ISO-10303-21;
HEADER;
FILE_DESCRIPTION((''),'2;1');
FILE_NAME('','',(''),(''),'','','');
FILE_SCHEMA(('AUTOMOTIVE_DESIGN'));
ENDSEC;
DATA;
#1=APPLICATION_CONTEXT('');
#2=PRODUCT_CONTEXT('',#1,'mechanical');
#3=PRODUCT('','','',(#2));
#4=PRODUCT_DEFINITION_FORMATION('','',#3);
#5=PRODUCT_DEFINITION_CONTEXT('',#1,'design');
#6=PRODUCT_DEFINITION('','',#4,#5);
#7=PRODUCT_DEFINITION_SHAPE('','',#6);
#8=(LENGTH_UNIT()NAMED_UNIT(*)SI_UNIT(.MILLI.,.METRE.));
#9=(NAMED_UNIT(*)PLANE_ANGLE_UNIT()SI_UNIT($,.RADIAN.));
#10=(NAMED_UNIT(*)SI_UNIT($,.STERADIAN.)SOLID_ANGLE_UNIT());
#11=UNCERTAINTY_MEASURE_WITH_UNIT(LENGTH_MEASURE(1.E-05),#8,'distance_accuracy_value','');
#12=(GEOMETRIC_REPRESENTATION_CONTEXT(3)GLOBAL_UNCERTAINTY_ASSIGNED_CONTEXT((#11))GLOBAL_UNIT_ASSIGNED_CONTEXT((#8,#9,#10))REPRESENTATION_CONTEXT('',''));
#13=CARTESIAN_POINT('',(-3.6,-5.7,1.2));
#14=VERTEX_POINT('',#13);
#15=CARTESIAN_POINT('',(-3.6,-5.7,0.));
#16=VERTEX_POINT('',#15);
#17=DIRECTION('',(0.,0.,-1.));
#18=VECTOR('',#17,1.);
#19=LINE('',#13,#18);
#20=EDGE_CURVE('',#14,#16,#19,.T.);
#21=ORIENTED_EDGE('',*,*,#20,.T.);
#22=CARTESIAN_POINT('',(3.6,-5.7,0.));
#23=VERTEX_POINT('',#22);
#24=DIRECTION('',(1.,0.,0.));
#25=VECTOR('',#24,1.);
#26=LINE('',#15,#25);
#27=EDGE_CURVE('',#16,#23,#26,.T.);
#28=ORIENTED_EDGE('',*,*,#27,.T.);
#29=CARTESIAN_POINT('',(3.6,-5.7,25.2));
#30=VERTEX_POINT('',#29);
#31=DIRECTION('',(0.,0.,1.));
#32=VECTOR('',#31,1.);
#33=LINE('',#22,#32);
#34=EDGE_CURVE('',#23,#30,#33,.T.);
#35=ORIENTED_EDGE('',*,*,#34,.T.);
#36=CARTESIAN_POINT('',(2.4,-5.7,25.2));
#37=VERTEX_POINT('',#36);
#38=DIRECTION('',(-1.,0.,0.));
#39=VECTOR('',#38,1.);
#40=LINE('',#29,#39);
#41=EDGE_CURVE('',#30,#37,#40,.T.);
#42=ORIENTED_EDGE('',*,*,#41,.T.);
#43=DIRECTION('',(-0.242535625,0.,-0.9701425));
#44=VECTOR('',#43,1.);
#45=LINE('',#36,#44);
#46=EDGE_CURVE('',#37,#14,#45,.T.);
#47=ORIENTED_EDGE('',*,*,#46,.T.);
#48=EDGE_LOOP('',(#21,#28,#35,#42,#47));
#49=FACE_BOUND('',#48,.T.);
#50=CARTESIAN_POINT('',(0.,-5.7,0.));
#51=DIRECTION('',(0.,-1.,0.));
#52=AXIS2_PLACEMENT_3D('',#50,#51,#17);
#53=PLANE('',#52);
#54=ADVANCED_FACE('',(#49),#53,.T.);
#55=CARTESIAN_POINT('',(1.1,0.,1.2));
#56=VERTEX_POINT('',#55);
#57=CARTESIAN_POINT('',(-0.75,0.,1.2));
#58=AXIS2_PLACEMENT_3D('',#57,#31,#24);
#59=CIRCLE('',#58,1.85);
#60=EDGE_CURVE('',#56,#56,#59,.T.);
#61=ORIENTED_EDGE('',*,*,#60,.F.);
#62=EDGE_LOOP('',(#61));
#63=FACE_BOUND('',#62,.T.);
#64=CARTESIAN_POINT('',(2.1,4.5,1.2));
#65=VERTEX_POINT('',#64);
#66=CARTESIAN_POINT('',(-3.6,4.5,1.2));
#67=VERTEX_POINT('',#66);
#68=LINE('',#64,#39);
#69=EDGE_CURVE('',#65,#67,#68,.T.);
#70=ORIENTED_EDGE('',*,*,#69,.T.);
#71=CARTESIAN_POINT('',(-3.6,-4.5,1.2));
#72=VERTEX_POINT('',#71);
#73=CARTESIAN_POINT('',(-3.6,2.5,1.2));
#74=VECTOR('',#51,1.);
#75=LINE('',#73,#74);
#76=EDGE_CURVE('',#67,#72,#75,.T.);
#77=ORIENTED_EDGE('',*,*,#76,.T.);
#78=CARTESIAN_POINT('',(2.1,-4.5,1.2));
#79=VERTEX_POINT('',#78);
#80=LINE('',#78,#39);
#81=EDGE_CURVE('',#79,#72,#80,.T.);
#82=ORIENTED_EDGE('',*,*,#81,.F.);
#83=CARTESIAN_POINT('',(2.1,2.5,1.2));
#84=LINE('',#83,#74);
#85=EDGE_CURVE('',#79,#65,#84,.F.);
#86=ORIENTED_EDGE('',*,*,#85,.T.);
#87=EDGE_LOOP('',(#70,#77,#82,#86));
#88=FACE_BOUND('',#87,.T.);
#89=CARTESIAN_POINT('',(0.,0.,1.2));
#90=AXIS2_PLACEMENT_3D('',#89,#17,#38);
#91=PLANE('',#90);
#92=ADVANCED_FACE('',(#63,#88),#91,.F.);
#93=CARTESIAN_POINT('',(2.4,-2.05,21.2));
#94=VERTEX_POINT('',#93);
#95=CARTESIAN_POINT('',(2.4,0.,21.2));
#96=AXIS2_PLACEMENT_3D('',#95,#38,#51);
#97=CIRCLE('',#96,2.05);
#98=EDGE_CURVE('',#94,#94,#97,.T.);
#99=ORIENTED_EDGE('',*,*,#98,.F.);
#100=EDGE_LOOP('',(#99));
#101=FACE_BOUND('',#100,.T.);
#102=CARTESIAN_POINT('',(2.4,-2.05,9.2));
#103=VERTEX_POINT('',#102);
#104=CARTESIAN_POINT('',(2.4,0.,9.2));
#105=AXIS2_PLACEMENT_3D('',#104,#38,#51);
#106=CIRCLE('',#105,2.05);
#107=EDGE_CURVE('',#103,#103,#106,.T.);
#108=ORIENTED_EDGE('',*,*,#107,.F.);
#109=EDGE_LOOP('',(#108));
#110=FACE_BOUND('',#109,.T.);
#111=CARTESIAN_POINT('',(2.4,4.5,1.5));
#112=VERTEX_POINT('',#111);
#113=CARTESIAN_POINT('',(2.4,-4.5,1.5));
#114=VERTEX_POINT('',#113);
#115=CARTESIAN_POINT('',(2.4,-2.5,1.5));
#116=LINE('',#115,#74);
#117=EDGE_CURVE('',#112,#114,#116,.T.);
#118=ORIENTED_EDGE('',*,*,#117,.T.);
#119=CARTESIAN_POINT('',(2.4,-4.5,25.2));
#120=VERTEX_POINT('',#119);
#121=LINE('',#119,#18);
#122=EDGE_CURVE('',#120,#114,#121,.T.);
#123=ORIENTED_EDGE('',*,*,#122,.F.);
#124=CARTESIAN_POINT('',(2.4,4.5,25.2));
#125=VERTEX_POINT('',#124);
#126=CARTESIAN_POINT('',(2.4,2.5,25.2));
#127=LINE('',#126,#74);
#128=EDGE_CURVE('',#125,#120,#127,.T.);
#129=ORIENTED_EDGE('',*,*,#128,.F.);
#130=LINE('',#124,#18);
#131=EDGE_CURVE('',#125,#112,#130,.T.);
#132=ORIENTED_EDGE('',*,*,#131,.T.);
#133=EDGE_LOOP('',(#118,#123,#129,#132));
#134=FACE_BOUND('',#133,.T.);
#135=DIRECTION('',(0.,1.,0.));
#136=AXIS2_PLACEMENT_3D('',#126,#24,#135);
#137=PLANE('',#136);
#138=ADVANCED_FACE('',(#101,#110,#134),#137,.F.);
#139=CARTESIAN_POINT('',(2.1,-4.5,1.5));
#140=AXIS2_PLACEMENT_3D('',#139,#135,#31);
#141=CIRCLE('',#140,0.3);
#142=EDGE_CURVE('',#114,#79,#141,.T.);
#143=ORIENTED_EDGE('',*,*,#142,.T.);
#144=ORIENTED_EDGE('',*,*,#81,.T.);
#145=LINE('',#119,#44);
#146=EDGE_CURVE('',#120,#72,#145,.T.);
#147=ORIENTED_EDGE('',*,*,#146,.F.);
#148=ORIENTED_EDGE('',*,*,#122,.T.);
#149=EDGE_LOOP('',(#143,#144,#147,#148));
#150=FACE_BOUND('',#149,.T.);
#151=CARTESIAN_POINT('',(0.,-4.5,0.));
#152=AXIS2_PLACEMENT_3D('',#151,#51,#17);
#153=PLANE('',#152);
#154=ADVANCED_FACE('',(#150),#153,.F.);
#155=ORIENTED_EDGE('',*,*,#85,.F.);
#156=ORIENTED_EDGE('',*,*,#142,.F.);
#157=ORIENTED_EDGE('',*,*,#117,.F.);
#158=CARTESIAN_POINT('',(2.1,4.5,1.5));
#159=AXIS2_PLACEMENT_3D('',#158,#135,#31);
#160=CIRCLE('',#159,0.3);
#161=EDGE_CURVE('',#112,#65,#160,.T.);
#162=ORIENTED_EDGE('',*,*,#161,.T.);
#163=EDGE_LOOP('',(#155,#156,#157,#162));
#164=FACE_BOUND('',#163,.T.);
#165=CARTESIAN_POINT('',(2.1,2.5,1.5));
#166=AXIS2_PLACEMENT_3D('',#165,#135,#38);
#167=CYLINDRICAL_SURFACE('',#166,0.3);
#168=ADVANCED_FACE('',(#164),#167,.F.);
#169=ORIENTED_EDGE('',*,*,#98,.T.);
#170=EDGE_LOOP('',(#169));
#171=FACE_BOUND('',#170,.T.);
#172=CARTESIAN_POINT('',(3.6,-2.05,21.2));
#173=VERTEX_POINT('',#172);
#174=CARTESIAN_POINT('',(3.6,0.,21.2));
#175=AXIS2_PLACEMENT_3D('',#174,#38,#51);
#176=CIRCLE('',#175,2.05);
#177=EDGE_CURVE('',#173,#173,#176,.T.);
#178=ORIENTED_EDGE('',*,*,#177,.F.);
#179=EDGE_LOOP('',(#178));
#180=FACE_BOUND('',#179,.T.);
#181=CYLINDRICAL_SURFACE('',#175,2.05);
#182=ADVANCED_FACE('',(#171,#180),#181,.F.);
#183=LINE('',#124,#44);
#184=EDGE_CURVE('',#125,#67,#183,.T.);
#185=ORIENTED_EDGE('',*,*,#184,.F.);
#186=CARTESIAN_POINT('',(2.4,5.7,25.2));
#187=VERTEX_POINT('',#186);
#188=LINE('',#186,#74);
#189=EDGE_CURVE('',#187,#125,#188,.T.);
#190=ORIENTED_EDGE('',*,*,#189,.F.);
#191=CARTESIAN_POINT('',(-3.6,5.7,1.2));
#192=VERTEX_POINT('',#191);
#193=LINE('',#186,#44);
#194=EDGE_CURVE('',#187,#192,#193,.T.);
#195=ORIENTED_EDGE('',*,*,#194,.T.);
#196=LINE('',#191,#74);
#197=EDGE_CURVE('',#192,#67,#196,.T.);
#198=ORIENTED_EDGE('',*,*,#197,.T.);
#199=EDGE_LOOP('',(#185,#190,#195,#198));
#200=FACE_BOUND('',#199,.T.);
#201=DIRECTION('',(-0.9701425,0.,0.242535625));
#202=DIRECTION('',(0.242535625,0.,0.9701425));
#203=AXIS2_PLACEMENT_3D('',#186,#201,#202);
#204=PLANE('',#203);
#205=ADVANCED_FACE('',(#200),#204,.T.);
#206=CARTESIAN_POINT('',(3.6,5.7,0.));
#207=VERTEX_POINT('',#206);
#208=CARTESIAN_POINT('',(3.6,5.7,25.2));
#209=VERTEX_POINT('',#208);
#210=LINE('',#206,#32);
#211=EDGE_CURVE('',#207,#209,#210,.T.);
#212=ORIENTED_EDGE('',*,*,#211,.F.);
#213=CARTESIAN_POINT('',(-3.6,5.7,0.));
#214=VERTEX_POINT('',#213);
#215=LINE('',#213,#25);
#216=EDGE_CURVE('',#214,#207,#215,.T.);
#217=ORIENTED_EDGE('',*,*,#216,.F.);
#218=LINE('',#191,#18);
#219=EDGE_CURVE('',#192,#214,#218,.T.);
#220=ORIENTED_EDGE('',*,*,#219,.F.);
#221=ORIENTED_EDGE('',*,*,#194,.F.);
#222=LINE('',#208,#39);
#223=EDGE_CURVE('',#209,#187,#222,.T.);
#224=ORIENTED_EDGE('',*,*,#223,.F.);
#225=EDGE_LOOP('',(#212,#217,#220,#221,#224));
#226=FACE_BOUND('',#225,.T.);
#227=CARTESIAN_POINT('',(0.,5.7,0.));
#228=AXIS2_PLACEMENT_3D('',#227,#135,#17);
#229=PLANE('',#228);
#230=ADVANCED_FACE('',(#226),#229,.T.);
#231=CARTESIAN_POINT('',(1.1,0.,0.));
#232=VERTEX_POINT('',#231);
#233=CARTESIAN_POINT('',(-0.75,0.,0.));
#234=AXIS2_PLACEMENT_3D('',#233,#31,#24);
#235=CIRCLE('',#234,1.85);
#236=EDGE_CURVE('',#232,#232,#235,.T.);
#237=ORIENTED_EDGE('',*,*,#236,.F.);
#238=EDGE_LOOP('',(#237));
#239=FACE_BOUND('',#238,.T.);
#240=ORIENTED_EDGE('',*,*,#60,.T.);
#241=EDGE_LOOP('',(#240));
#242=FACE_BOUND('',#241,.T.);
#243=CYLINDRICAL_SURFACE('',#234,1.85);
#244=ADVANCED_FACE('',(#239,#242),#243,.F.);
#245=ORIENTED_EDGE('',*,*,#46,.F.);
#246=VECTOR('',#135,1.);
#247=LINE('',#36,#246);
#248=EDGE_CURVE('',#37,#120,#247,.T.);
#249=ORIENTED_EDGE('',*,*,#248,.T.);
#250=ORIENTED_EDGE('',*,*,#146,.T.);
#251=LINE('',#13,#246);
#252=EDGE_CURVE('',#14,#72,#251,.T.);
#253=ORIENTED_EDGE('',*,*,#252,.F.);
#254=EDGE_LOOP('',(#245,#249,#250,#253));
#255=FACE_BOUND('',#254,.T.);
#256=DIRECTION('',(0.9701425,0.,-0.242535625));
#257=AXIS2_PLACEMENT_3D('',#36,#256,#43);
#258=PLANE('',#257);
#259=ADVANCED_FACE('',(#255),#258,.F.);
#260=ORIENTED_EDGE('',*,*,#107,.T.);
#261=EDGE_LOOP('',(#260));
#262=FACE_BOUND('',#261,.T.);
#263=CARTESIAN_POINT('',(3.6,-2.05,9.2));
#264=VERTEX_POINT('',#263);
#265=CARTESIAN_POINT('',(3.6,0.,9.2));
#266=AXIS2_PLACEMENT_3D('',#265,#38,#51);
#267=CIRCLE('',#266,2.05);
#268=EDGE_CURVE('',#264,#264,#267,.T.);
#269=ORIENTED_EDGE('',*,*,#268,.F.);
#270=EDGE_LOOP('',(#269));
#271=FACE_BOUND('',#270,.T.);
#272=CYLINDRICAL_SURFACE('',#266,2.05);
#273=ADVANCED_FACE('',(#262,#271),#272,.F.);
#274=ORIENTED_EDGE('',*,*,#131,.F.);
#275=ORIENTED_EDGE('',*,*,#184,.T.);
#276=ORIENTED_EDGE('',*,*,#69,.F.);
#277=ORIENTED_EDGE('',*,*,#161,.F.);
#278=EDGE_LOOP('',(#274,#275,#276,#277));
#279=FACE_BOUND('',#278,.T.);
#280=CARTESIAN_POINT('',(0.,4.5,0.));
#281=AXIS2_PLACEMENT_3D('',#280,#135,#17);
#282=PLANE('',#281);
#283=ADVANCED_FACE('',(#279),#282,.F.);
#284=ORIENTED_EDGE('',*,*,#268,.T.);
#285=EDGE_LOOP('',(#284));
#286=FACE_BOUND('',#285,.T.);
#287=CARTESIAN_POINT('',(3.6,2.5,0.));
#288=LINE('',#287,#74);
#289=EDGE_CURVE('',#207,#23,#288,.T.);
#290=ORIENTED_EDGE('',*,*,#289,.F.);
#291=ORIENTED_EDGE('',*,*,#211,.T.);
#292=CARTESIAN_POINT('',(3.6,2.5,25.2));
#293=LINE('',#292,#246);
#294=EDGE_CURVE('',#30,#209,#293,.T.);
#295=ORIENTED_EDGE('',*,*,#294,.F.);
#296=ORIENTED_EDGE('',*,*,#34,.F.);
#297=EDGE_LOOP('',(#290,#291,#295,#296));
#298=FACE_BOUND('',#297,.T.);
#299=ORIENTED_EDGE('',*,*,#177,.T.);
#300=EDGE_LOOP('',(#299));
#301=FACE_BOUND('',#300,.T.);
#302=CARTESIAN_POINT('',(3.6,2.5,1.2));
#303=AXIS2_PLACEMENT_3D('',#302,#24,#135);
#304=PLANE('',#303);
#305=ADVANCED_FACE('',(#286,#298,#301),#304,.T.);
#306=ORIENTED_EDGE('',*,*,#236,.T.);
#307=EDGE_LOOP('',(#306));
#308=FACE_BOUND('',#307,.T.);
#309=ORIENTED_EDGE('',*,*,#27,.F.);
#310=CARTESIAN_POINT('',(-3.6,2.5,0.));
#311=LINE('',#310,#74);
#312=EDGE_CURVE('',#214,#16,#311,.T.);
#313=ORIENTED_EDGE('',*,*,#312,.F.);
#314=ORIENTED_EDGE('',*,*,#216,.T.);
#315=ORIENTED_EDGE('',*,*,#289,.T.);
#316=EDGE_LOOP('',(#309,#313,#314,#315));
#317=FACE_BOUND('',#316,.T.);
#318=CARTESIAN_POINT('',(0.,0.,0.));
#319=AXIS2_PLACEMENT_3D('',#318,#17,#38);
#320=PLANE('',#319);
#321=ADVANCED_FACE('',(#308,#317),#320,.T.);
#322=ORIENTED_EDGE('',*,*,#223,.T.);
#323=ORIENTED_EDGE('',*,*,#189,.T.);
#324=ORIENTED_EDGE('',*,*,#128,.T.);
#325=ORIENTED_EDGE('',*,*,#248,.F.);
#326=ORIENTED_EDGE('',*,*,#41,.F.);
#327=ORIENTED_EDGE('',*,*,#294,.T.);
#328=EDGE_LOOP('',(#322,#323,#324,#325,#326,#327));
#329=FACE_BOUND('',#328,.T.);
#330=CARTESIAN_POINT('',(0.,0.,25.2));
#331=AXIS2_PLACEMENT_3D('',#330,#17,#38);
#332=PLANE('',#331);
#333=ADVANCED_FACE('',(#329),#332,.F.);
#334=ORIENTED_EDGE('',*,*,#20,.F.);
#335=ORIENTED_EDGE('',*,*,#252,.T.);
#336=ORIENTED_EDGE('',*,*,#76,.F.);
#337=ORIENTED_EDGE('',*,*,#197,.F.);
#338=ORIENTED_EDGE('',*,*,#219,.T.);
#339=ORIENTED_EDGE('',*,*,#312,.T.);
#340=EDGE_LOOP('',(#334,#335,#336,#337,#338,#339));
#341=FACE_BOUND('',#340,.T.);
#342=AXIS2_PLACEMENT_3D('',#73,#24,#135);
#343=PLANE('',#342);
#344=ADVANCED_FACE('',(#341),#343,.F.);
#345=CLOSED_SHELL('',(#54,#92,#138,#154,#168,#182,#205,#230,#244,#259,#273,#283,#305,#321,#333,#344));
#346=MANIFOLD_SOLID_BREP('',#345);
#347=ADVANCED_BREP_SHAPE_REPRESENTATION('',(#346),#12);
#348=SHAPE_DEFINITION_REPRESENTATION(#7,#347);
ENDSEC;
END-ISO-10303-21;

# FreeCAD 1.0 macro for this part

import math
import FreeCAD as App
import Part
import Sketcher


def edges_at(feature, points):
    """Names of the edges that pass closest to the given points."""
    edges = feature.Shape.Edges
    near = lambda p: min(range(len(edges)), key=lambda i: edges[i].distToShape(Part.Vertex(*p))[0])
    return sorted({f"Edge{near(p) + 1}" for p in points})


def add_polygon(sketch, points):
    """Adds a closed chain of lines whose ends are joined by coincident constraints."""
    first, n = sketch.GeometryCount, len(points)
    for a, b in zip(points, points[1:] + points[:1]):
        sketch.addGeometry(Part.LineSegment(App.Vector(*a, 0), App.Vector(*b, 0)), False)
    for i in range(n):
        sketch.addConstraint(Sketcher.Constraint("Coincident", first + i, 2, first + (i + 1) % n, 1))

doc = App.newDocument("Part")
body = doc.addObject("PartDesign::Body", "Body")

# Sketch on XY plane
sketch1 = doc.addObject("Sketcher::SketchObject", "Sketch")
body.addObject(sketch1)
sketch1.AttachmentSupport = (doc.XY_Plane, [""])
sketch1.MapMode = "FlatFace"
add_polygon(sketch1, [(-4, 2), (-4, -2), (4, -2), (4, 2)])  # lines 0-3
sketch1.addConstraint(Sketcher.Constraint("Vertical", 0))
sketch1.addConstraint(Sketcher.Constraint("Horizontal", 1))
sketch1.addConstraint(Sketcher.Constraint("Vertical", 2))
sketch1.addConstraint(Sketcher.Constraint("Horizontal", 3))
sketch1.addConstraint(Sketcher.Constraint("Symmetric", 0, 2, 2, 2, -1, 1))
sketch1.addConstraint(Sketcher.Constraint("DistanceY", 0, 2, 0, 1, 5.0))
sketch1.addConstraint(Sketcher.Constraint("DistanceX", 1, 1, 1, 2, 7.2))
pad1 = doc.addObject("PartDesign::Pad", "Pad")
body.addObject(pad1)
pad1.Profile = sketch1
pad1.Length = 1.2

# Sketch on XY plane
sketch2 = doc.addObject("Sketcher::SketchObject", "Sketch001")
body.addObject(sketch2)
sketch2.AttachmentSupport = (doc.XY_Plane, [""])
sketch2.MapMode = "FlatFace"
sketch2.AttachmentOffset = App.Placement(App.Vector(0, 0, 1.2), App.Rotation())
sketch2.addGeometry(Part.Circle(App.Vector(-0.8, 0, 0), App.Vector(0, 0, 1), 1.9), False)
sketch2.addConstraint(Sketcher.Constraint("PointOnObject", 0, 3, -1))
sketch2.addConstraint(Sketcher.Constraint("Diameter", 0, 3.7))
sketch2.addConstraint(Sketcher.Constraint("DistanceX", 0, 3, -1, 1, 0.75))
pocket1 = doc.addObject("PartDesign::Pocket", "Pocket")
body.addObject(pocket1)
pocket1.Profile = sketch2
pocket1.Type = "ThroughAll"

# Sketch on XY plane
sketch3 = doc.addObject("Sketcher::SketchObject", "Sketch002")
body.addObject(sketch3)
sketch3.AttachmentSupport = (doc.XY_Plane, [""])
sketch3.MapMode = "FlatFace"
sketch3.AttachmentOffset = App.Placement(App.Vector(0, 0, 1.2), App.Rotation())
add_polygon(sketch3, [(2.4, 2.5), (2.4, -2.5), (3.6, -2.5), (3.6, 2.5)])  # lines 0-3
sketch3.addConstraint(Sketcher.Constraint("Vertical", 0))
sketch3.addConstraint(Sketcher.Constraint("Horizontal", 1))
sketch3.addConstraint(Sketcher.Constraint("Vertical", 2))
sketch3.addConstraint(Sketcher.Constraint("Horizontal", 3))
sketch3.addConstraint(Sketcher.Constraint("DistanceY", 0, 2, 0, 1, 5.0))
sketch3.addConstraint(Sketcher.Constraint("DistanceX", 1, 1, 1, 2, 1.2))
sketch3.addConstraint(Sketcher.Constraint("DistanceX", -1, 1, 0, 2, 2.4))
sketch3.addConstraint(Sketcher.Constraint("DistanceY", 0, 2, -1, 1, 2.5))
pad2 = doc.addObject("PartDesign::Pad", "Pad001")
body.addObject(pad2)
pad2.Profile = sketch3
pad2.Length = 24
doc.recompute()

fillet = doc.addObject("PartDesign::Fillet", "Fillet")
body.addObject(fillet)
fillet.Base = (pad2, edges_at(pad2, [(2.4, 0, 1.2)]))
fillet.Radius = 0.3

# Sketch on YZ plane
sketch4 = doc.addObject("Sketcher::SketchObject", "Sketch003")
body.addObject(sketch4)
sketch4.AttachmentSupport = (doc.YZ_Plane, [""])
sketch4.MapMode = "FlatFace"
sketch4.AttachmentOffset = App.Placement(App.Vector(0, 0, 2.4), App.Rotation())
sketch4.addGeometry(Part.Circle(App.Vector(0, 21.2, 0), App.Vector(0, 0, 1), 2), False)
sketch4.addGeometry(Part.Circle(App.Vector(0, 9.2, 0), App.Vector(0, 0, 1), 2), False)
sketch4.addConstraint(Sketcher.Constraint("Equal", 0, 1))
sketch4.addConstraint(Sketcher.Constraint("PointOnObject", 0, 3, -2))
sketch4.addConstraint(Sketcher.Constraint("PointOnObject", 1, 3, -2))
sketch4.addConstraint(Sketcher.Constraint("Diameter", 0, 4.1))
sketch4.addConstraint(Sketcher.Constraint("DistanceY", 1, 3, 0, 3, 12.0))
sketch4.addConstraint(Sketcher.Constraint("DistanceY", -1, 1, 0, 3, 21.2))
pocket2 = doc.addObject("PartDesign::Pocket", "Pocket001")
body.addObject(pocket2)
pocket2.Profile = sketch4
pocket2.Type = "ThroughAll"
pocket2.Reversed = True

# Sketch on XZ plane
sketch5 = doc.addObject("Sketcher::SketchObject", "Sketch004")
body.addObject(sketch5)
sketch5.AttachmentSupport = (doc.XZ_Plane, [""])
sketch5.MapMode = "FlatFace"
sketch5.AttachmentOffset = App.Placement(App.Vector(0, 0, 4.5), App.Rotation())
sketch5.addGeometry(Part.LineSegment(App.Vector(-3.6, 1.2, 0), App.Vector(-3.6, 0, 0)), False)
sketch5.addGeometry(Part.LineSegment(App.Vector(-3.6, 0, 0), App.Vector(3.6, 0, 0)), False)
sketch5.addGeometry(Part.LineSegment(App.Vector(3.6, 0, 0), App.Vector(3.6, 25.2, 0)), False)
sketch5.addGeometry(Part.LineSegment(App.Vector(3.6, 25.2, 0), App.Vector(2.4, 25.2, 0)), False)
sketch5.addGeometry(Part.LineSegment(App.Vector(2.4, 25.2, 0), App.Vector(2.4, 1.5, 0)), False)
sketch5.addGeometry(Part.ArcOfCircle(Part.Circle(App.Vector(2.1, 1.5, 0), App.Vector(0, 0, 1), 0.3), math.radians(-90), math.radians(0)), False)
sketch5.addGeometry(Part.LineSegment(App.Vector(2.1, 1.2, 0), App.Vector(-3.6, 1.2, 0)), False)
sketch5.addConstraint(Sketcher.Constraint("Coincident", 0, 2, 1, 1))
sketch5.addConstraint(Sketcher.Constraint("Coincident", 1, 2, 2, 1))
sketch5.addConstraint(Sketcher.Constraint("Coincident", 2, 2, 3, 1))
sketch5.addConstraint(Sketcher.Constraint("Coincident", 3, 2, 4, 1))
sketch5.addConstraint(Sketcher.Constraint("Tangent", 4, 2, 5, 2))
sketch5.addConstraint(Sketcher.Constraint("Tangent", 5, 1, 6, 1))
sketch5.addConstraint(Sketcher.Constraint("Coincident", 6, 2, 0, 1))
sketch5.addConstraint(Sketcher.Constraint("Vertical", 0))
sketch5.addConstraint(Sketcher.Constraint("Horizontal", 1))
sketch5.addConstraint(Sketcher.Constraint("Vertical", 2))
sketch5.addConstraint(Sketcher.Constraint("Horizontal", 3))
sketch5.addConstraint(Sketcher.Constraint("Vertical", 4))
sketch5.addConstraint(Sketcher.Constraint("Horizontal", 6))
sketch5.addConstraint(Sketcher.Constraint("Symmetric", 0, 2, 1, 2, -1, 1))
sketch5.addConstraint(Sketcher.Constraint("Equal", 3, 0))
sketch5.addConstraint(Sketcher.Constraint("Radius", 5, 0.3))
sketch5.addConstraint(Sketcher.Constraint("DistanceX", 1, 1, 1, 2, 7.2))
sketch5.addConstraint(Sketcher.Constraint("DistanceX", 3, 2, 3, 1, 1.2))
sketch5.addConstraint(Sketcher.Constraint("DistanceY", 2, 1, 2, 2, 25.2))
pad3 = doc.addObject("PartDesign::Pad", "Pad002")
body.addObject(pad3)
pad3.Profile = sketch5
pad3.Length = 2
pad3.Reversed = True
doc.recompute()

mirrored = doc.addObject("PartDesign::Mirrored", "Mirrored")
body.addObject(mirrored)
mirrored.Originals = [pad3]
mirrored.MirrorPlane = (doc.XZ_Plane, [""])
body.Tip = mirrored

# Sketch on XZ plane
sketch6 = doc.addObject("Sketcher::SketchObject", "Sketch005")
body.addObject(sketch6)
sketch6.AttachmentSupport = (doc.XZ_Plane, [""])
sketch6.MapMode = "FlatFace"
sketch6.AttachmentOffset = App.Placement(App.Vector(0, 0, 4.5), App.Rotation())
add_polygon(sketch6, [(-3.6, 0), (3.6, 0), (3.6, 25.2), (2.4, 25.2), (-3.6, 1.2)])  # lines 0-4
sketch6.addConstraint(Sketcher.Constraint("Horizontal", 0))
sketch6.addConstraint(Sketcher.Constraint("Vertical", 1))
sketch6.addConstraint(Sketcher.Constraint("Horizontal", 2))
sketch6.addConstraint(Sketcher.Constraint("Vertical", 4))
sketch6.addConstraint(Sketcher.Constraint("Symmetric", 0, 2, 4, 2, -1, 1))
sketch6.addConstraint(Sketcher.Constraint("Equal", 2, 4))
sketch6.addConstraint(Sketcher.Constraint("DistanceX", 0, 1, 0, 2, 7.2))
sketch6.addConstraint(Sketcher.Constraint("DistanceX", 2, 2, 2, 1, 1.2))
sketch6.addConstraint(Sketcher.Constraint("DistanceY", 1, 1, 1, 2, 25.2))
pad4 = doc.addObject("PartDesign::Pad", "Pad003")
body.addObject(pad4)
pad4.Profile = sketch6
pad4.Length = 1.2
doc.recompute()

mirrored2 = doc.addObject("PartDesign::Mirrored", "Mirrored001")
body.addObject(mirrored2)
mirrored2.Originals = [pad4]
mirrored2.MirrorPlane = (doc.XZ_Plane, [""])
body.Tip = mirrored2

doc.recompute()
